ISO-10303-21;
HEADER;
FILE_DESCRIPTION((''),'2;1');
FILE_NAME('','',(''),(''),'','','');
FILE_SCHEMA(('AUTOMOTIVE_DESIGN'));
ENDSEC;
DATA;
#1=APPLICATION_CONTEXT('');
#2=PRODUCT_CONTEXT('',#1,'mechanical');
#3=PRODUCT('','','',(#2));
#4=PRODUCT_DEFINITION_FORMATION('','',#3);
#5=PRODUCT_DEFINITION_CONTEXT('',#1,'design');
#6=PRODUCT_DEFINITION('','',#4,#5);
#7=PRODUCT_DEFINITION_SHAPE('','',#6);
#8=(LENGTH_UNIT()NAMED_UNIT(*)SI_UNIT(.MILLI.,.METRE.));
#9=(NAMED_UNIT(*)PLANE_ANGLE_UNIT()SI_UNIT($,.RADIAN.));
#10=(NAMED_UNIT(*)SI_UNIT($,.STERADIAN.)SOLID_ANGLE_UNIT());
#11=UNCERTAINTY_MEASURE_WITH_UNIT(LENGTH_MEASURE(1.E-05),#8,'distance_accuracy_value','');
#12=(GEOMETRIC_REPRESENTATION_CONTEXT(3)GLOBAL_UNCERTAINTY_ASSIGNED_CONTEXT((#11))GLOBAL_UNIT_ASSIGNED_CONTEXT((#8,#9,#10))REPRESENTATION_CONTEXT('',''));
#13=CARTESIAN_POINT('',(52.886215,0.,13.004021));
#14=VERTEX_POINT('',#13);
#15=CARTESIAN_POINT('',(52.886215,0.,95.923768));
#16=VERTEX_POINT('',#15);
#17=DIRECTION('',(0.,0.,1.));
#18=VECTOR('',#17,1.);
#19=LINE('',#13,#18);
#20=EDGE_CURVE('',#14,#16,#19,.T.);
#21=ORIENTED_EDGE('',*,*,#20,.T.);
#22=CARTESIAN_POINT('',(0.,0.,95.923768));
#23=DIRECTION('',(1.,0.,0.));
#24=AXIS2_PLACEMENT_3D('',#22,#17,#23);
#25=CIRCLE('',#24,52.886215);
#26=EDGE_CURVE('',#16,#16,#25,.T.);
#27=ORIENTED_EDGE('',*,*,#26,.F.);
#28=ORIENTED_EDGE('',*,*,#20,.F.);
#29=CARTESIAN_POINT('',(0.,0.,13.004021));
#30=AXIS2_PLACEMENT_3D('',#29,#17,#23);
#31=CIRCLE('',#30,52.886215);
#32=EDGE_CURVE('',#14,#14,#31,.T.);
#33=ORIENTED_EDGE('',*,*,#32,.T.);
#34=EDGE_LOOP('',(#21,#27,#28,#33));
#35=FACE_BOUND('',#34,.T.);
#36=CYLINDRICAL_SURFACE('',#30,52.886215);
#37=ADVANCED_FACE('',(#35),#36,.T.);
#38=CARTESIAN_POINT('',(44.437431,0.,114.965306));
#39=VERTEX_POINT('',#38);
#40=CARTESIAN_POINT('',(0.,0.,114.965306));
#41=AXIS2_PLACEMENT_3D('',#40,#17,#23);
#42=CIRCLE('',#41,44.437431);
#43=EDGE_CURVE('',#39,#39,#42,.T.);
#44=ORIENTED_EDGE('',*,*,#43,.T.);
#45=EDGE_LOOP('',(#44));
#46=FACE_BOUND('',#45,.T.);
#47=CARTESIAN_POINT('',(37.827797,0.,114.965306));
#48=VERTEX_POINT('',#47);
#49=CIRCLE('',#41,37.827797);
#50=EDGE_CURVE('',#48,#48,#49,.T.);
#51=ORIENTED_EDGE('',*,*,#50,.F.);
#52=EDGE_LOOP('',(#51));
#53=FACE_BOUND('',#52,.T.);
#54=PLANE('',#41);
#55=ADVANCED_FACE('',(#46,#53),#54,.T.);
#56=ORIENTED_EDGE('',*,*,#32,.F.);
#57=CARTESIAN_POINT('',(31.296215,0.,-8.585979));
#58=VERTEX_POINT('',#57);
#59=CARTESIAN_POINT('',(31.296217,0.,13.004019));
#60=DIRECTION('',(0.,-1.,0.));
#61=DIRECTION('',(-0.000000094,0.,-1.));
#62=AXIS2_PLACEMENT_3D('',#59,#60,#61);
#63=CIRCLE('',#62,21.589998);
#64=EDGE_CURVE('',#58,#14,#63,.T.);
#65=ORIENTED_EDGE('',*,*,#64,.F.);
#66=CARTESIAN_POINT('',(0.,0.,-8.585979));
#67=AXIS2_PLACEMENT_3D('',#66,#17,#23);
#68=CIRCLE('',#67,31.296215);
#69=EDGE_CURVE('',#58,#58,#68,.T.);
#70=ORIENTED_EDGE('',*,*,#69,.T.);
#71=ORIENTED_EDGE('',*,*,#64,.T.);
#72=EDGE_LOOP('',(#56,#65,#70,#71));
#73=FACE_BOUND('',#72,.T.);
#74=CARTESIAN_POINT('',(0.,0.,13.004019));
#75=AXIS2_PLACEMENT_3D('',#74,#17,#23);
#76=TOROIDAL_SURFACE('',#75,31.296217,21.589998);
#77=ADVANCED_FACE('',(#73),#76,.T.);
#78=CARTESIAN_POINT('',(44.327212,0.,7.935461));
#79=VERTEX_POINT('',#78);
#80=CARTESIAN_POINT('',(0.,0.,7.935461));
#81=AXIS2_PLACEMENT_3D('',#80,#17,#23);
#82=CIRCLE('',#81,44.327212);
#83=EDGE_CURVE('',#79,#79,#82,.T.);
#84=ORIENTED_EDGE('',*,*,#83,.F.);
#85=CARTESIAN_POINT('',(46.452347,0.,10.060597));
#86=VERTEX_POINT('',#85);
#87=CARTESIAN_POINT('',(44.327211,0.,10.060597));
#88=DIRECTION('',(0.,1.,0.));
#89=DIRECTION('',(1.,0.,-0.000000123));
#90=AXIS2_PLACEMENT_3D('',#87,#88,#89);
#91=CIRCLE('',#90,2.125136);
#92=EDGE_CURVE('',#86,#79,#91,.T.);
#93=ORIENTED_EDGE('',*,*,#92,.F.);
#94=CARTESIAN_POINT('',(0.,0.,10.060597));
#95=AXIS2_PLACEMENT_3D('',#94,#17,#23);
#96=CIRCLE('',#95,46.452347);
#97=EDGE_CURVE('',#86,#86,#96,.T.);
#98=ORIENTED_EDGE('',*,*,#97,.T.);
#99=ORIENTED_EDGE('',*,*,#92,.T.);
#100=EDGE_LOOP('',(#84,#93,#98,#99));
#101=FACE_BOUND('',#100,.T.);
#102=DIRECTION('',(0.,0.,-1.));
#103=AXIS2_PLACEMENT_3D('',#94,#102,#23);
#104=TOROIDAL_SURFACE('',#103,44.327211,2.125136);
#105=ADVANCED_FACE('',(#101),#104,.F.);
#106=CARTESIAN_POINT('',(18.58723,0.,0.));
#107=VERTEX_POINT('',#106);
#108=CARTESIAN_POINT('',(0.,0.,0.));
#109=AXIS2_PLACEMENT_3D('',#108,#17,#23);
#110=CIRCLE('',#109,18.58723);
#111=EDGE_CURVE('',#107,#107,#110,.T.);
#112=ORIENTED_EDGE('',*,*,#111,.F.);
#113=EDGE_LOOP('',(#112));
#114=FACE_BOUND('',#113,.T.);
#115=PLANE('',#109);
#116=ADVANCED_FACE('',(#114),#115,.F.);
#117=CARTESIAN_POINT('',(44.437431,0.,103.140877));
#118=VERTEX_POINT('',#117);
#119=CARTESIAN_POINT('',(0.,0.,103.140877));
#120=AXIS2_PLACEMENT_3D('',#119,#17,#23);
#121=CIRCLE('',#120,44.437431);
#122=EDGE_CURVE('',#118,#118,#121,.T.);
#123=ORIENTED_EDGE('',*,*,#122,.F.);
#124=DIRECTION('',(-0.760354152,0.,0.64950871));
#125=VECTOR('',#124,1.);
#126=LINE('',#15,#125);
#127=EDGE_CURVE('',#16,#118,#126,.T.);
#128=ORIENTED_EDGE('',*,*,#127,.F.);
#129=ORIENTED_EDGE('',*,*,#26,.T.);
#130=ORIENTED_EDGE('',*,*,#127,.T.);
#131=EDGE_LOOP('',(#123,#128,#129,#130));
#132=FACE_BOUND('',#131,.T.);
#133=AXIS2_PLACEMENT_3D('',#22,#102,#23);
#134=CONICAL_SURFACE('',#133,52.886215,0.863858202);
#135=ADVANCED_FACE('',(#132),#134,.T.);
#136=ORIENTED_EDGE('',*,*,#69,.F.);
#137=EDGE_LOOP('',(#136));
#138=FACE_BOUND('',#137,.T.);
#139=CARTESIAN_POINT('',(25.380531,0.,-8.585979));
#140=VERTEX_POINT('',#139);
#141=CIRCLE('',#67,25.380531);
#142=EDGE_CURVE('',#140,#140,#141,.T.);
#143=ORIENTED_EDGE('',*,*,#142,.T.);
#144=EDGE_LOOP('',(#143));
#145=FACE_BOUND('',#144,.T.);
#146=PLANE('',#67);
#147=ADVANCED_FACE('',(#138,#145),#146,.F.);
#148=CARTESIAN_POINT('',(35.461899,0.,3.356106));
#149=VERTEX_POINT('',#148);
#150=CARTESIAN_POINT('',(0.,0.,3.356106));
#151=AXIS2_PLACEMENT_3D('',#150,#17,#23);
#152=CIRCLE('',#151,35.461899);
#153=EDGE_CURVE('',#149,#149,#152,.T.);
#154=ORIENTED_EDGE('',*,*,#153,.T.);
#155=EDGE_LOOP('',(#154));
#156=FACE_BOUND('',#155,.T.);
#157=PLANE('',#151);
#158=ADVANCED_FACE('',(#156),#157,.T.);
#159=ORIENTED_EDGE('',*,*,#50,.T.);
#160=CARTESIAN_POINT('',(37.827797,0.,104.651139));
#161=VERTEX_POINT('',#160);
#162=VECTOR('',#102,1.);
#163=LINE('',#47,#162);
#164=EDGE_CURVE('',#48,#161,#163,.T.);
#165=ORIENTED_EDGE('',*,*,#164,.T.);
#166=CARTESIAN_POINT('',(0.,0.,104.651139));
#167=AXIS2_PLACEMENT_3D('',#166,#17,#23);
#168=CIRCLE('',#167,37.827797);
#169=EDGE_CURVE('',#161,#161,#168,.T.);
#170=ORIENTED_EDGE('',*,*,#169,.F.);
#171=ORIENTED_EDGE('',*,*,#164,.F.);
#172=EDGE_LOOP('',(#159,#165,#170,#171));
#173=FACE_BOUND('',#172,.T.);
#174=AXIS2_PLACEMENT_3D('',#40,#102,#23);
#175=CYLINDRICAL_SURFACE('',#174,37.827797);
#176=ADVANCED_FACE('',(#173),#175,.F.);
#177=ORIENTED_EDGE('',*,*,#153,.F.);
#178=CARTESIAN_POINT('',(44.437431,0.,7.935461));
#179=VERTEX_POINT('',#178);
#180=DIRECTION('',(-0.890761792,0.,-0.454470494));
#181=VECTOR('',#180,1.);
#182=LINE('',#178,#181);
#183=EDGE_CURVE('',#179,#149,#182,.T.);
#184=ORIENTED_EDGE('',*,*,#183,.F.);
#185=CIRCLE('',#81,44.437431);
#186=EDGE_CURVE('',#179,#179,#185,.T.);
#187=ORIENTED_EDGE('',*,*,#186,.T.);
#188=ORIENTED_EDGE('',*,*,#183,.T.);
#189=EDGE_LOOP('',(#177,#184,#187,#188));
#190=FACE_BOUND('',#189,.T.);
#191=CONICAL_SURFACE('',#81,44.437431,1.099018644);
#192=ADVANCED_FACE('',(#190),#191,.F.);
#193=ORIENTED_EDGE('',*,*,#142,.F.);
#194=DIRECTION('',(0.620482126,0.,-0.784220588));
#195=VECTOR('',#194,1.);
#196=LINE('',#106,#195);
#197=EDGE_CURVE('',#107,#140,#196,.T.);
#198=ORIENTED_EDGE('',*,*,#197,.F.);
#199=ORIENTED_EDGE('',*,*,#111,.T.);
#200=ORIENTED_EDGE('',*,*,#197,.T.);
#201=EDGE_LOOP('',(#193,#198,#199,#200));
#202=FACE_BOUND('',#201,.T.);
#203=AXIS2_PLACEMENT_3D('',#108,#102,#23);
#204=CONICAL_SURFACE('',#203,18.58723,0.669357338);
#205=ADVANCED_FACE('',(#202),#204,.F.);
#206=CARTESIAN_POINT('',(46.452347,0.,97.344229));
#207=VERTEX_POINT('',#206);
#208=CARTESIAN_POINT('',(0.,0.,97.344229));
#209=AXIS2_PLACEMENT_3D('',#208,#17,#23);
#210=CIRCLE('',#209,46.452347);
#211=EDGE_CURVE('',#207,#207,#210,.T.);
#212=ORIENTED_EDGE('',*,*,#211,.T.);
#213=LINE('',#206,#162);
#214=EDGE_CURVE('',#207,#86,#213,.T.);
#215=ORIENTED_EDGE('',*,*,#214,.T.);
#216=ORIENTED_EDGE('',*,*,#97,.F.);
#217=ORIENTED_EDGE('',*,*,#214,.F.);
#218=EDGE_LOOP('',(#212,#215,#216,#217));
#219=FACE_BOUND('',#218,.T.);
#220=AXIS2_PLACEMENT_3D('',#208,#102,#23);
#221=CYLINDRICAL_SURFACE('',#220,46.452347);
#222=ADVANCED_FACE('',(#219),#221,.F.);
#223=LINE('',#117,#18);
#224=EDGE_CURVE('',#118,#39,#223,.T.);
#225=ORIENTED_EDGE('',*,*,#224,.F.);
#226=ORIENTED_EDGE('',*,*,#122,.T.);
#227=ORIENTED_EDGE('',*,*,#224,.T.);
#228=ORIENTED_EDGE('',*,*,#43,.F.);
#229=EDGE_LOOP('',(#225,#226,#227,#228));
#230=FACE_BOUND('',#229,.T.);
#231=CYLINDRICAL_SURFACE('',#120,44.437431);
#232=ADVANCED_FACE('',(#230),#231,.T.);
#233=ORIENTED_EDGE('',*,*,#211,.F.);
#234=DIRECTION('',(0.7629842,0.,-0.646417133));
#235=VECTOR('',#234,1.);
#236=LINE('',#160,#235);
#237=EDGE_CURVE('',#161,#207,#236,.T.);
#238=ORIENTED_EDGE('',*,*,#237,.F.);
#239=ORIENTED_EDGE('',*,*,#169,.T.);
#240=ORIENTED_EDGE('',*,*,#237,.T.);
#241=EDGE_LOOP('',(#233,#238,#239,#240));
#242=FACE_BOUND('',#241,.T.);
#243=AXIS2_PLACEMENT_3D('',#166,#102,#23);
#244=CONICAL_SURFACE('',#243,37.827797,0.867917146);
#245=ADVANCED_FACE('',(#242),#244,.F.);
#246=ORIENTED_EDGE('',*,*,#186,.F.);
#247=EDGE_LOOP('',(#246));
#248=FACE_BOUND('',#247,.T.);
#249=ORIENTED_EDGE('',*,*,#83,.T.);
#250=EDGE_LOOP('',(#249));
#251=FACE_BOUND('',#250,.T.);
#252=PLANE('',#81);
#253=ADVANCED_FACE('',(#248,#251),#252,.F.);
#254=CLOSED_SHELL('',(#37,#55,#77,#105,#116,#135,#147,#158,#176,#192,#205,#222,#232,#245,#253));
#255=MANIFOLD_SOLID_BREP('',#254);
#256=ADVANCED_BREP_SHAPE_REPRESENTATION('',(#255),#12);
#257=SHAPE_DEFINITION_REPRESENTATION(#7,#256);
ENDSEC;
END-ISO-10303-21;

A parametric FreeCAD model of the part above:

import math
import FreeCAD as App
import Part
import Sketcher

V = App.Vector
Q = App.Units.Quantity

doc = App.newDocument("Part")
params = doc.addObject("Spreadsheet::Sheet", "Params")
for row, (alias, value) in enumerate([
    ("sketch1_radius", "0.8499999 in"),
    ("revolution_angle", "360 deg"),
], start=1):
    params.set(f"A{row}", alias)
    params.set(f"B{row}", "=" + value)
    params.setAlias(f"B{row}", alias)

body = doc.addObject("PartDesign::Body", "Body")

# Sketch on XZ plane
sketch1 = doc.addObject("Sketcher::SketchObject", "Sketch")
body.addObject(sketch1)
sketch1.AttachmentSupport = (doc.XZ_Plane, [""])
sketch1.MapMode = "FlatFace"
sketch1.addGeometry([
    Part.LineSegment(V(0, 3.36, 0), V(0, 0, 0)),  # 0
    Part.LineSegment(V(0, 0, 0), V(18.59, 0, 0)),  # 1
    Part.LineSegment(V(18.59, 0, 0), V(25.38, -8.59, 0)),  # 2
    Part.LineSegment(V(25.38, -8.59, 0), V(31.3, -8.59, 0)),  # 3
    Part.ArcOfCircle(Part.Circle(V(31.3, 13, 0), V(0, 0, 1), 21.59), math.radians(-90), math.radians(0)),  # 4
    Part.LineSegment(V(52.89, 13, 0), V(52.89, 95.92, 0)),  # 5
    Part.LineSegment(V(52.89, 95.92, 0), V(44.44, 103.14, 0)),  # 6
    Part.LineSegment(V(44.44, 103.14, 0), V(44.44, 114.97, 0)),  # 7
    Part.LineSegment(V(44.44, 114.97, 0), V(37.83, 114.97, 0)),  # 8
    Part.LineSegment(V(37.83, 114.97, 0), V(37.83, 104.65, 0)),  # 9
    Part.LineSegment(V(37.83, 104.65, 0), V(46.45, 97.34, 0)),  # 10
    Part.LineSegment(V(46.45, 97.34, 0), V(46.45, 10.06, 0)),  # 11
    Part.ArcOfCircle(Part.Circle(V(44.33, 10.06, 0), V(0, 0, 1), 2.13), math.radians(-90), math.radians(0)),  # 12
    Part.LineSegment(V(44.33, 7.94, 0), V(44.44, 7.94, 0)),  # 13
    Part.LineSegment(V(44.44, 7.94, 0), V(35.46, 3.36, 0)),  # 14
    Part.LineSegment(V(35.46, 3.36, 0), V(0, 3.36, 0)),  # 15
], False)
sketch1.addConstraint([
    Sketcher.Constraint("Coincident", 0, 2, 1, 1),
    Sketcher.Constraint("Coincident", 1, 2, 2, 1),
    Sketcher.Constraint("Coincident", 2, 2, 3, 1),
    Sketcher.Constraint("Tangent", 3, 2, 4, 1),
    Sketcher.Constraint("Tangent", 4, 2, 5, 1),
    Sketcher.Constraint("Coincident", 5, 2, 6, 1),
    Sketcher.Constraint("Coincident", 6, 2, 7, 1),
    Sketcher.Constraint("Coincident", 7, 2, 8, 1),
    Sketcher.Constraint("Coincident", 8, 2, 9, 1),
    Sketcher.Constraint("Coincident", 9, 2, 10, 1),
    Sketcher.Constraint("Coincident", 10, 2, 11, 1),
    Sketcher.Constraint("Tangent", 11, 2, 12, 2),
    Sketcher.Constraint("Tangent", 12, 1, 13, 1),
    Sketcher.Constraint("Coincident", 13, 2, 14, 1),
    Sketcher.Constraint("Coincident", 14, 2, 15, 1),
    Sketcher.Constraint("Coincident", 15, 2, 0, 1),
    Sketcher.Constraint("Vertical", 0),
    Sketcher.Constraint("Horizontal", 1),
    Sketcher.Constraint("Horizontal", 3),
    Sketcher.Constraint("Vertical", 5),
    Sketcher.Constraint("Vertical", 7),
    Sketcher.Constraint("Horizontal", 8),
    Sketcher.Constraint("Vertical", 9),
    Sketcher.Constraint("Vertical", 11),
    Sketcher.Constraint("Horizontal", 13),
    Sketcher.Constraint("Horizontal", 15),
    Sketcher.Constraint("Coincident", 0, 2, -1, 1),
    Sketcher.Constraint("Vertical", 7, 2, 13, 2),
    Sketcher.Constraint("Radius", 4, Q("0.8499999 in")),
    Sketcher.Constraint("DistanceX", 15, 2, 15, 1, Q("35.461899 mm")),
    Sketcher.Constraint("Radius", 12, Q("2.125136 mm")),
    Sketcher.Constraint("DistanceX", 1, 1, 1, 2, Q("18.58723 mm")),
    Sketcher.Constraint("DistanceX", 13, 1, 13, 2, Q("0.110219 mm")),
    Sketcher.Constraint("DistanceY", 7, 1, 7, 2, Q("11.824429 mm")),
    Sketcher.Constraint("DistanceY", 11, 2, 11, 1, Q("87.283632 mm")),
    Sketcher.Constraint("DistanceX", 1, 2, 2, 2, Q("6.793301 mm")),
    Sketcher.Constraint("DistanceX", 1, 2, 6, 2, Q("25.850201 mm")),
    Sketcher.Constraint("DistanceX", 3, 1, 3, 2, Q("5.915684 mm")),
    Sketcher.Constraint("DistanceX", 8, 2, 8, 1, Q("6.609634 mm")),
    Sketcher.Constraint("DistanceY", 0, 2, 0, 1, Q("3.356106 mm")),
    Sketcher.Constraint("DistanceY", 5, 1, 5, 2, Q("82.919747 mm")),
    Sketcher.Constraint("DistanceY", 9, 2, 9, 1, Q("10.314167 mm")),
    Sketcher.Constraint("DistanceY", -1, 1, 4, 3, Q("13.004019 mm")),
    Sketcher.Constraint("DistanceY", -1, 1, 9, 2, Q("104.651139 mm")),
    Sketcher.Constraint("DistanceY", -1, 1, 10, 2, Q("97.344229 mm")),
])
sketch1.setExpression("Constraints[28]", "Params.sketch1_radius")
revolution = doc.addObject("PartDesign::Revolution", "Revolution")
body.addObject(revolution)
revolution.Profile = sketch1
revolution.ReferenceAxis = (sketch1, ["V_Axis"])
revolution.setExpression("Angle", "Params.revolution_angle")

doc.recompute()
